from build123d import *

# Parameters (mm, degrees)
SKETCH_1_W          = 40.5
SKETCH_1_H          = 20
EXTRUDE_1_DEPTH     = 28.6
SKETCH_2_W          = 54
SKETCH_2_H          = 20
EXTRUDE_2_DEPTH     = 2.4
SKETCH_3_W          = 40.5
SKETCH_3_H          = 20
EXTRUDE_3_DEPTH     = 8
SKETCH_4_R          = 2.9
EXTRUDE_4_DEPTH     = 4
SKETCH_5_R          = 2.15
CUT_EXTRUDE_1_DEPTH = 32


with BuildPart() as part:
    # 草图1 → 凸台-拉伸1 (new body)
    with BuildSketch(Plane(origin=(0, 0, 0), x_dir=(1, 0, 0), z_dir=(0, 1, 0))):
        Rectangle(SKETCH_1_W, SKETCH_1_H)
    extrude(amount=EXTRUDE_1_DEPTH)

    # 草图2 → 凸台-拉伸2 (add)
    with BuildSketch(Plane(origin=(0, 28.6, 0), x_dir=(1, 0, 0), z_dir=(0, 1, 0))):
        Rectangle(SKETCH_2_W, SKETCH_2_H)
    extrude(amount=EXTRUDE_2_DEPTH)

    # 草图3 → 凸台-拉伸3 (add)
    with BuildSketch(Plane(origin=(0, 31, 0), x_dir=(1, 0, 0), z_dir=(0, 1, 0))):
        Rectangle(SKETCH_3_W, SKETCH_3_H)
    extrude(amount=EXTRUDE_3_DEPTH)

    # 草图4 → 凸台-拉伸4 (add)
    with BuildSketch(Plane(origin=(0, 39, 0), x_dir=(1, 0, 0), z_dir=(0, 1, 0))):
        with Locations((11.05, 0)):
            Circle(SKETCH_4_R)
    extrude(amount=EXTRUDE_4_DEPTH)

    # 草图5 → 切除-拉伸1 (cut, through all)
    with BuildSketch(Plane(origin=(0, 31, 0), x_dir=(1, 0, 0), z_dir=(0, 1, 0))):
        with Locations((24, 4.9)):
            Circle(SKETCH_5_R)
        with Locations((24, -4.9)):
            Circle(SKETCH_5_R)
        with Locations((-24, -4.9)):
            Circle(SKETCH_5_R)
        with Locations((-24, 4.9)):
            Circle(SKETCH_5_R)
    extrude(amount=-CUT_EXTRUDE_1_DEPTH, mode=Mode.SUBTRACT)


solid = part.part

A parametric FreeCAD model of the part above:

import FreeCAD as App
import Part
import Sketcher

V = App.Vector

doc = App.newDocument("Part")
params = doc.addObject("Spreadsheet::Sheet", "Params")
for row, (alias, value) in enumerate([
    ("sketch1_height", "20 mm"),
    ("sketch1_width", "40.5 mm"),
    ("pad1_length", "28.6 mm"),
    ("sketch2_width", "54 mm"),
    ("sketch2_height", "20 mm"),
    ("pad2_length", "2.4 mm"),
    ("sketch3_height", "20 mm"),
    ("sketch3_width", "40.5 mm"),
    ("pad3_length", "8 mm"),
    ("sketch4_diameter", "5.8 mm"),
    ("pad4_length", "4 mm"),
    ("sketch5_diameter", "4.3 mm"),
], start=1):
    params.set(f"A{row}", alias)
    params.set(f"B{row}", "=" + value)
    params.setAlias(f"B{row}", alias)

body = doc.addObject("PartDesign::Body", "Body")

# Sketch on XZ plane
sketch1 = body.newObject("Sketcher::SketchObject", "Sketch")
sketch1.AttachmentSupport = (doc.getObject("XZ_Plane"), [""])
sketch1.MapMode = "FlatFace"
sketch1.addGeometry(Part.LineSegment(V(-20, -10, 0), V(-20, 10, 0)), False)
sketch1.addGeometry(Part.LineSegment(V(-20, 10, 0), V(20, 10, 0)), False)
sketch1.addGeometry(Part.LineSegment(V(20, 10, 0), V(20, -10, 0)), False)
sketch1.addGeometry(Part.LineSegment(V(20, -10, 0), V(-20, -10, 0)), False)
sketch1.addConstraint(Sketcher.Constraint("Coincident", 0, 2, 1, 1))
sketch1.addConstraint(Sketcher.Constraint("Coincident", 1, 2, 2, 1))
sketch1.addConstraint(Sketcher.Constraint("Coincident", 2, 2, 3, 1))
sketch1.addConstraint(Sketcher.Constraint("Coincident", 3, 2, 0, 1))
sketch1.addConstraint(Sketcher.Constraint("Vertical", 0))
sketch1.addConstraint(Sketcher.Constraint("Horizontal", 1))
sketch1.addConstraint(Sketcher.Constraint("Vertical", 2))
sketch1.addConstraint(Sketcher.Constraint("Horizontal", 3))
sketch1.addConstraint(Sketcher.Constraint("Symmetric", 0, 2, 2, 2, -1, 1))
sketch1.addConstraint(Sketcher.Constraint("DistanceY", 0, 1, 0, 2, 20.0))
sketch1.addConstraint(Sketcher.Constraint("DistanceX", 1, 1, 1, 2, 40.5))
sketch1.setExpression("Constraints[9]", "Params.sketch1_height")
sketch1.setExpression("Constraints[10]", "Params.sketch1_width")
pad1 = body.newObject("PartDesign::Pad", "Pad")
pad1.Profile = sketch1
pad1.setExpression("Length", "Params.pad1_length")
pad1.Reversed = True

# Sketch on XZ plane
sketch2 = body.newObject("Sketcher::SketchObject", "Sketch001")
sketch2.AttachmentSupport = (doc.getObject("XZ_Plane"), [""])
sketch2.MapMode = "FlatFace"
sketch2.AttachmentOffset = App.Placement(V(0, 0, -28.6), App.Rotation())
sketch2.addGeometry(Part.LineSegment(V(-27, -10, 0), V(-27, 10, 0)), False)
sketch2.addGeometry(Part.LineSegment(V(-27, 10, 0), V(27, 10, 0)), False)
sketch2.addGeometry(Part.LineSegment(V(27, 10, 0), V(27, -10, 0)), False)
sketch2.addGeometry(Part.LineSegment(V(27, -10, 0), V(-27, -10, 0)), False)
sketch2.addConstraint(Sketcher.Constraint("Coincident", 0, 2, 1, 1))
sketch2.addConstraint(Sketcher.Constraint("Coincident", 1, 2, 2, 1))
sketch2.addConstraint(Sketcher.Constraint("Coincident", 2, 2, 3, 1))
sketch2.addConstraint(Sketcher.Constraint("Coincident", 3, 2, 0, 1))
sketch2.addConstraint(Sketcher.Constraint("Vertical", 0))
sketch2.addConstraint(Sketcher.Constraint("Horizontal", 1))
sketch2.addConstraint(Sketcher.Constraint("Vertical", 2))
sketch2.addConstraint(Sketcher.Constraint("Horizontal", 3))
sketch2.addConstraint(Sketcher.Constraint("Symmetric", 0, 2, 2, 2, -1, 1))
sketch2.addConstraint(Sketcher.Constraint("DistanceX", 1, 1, 1, 2, 54.0))
sketch2.addConstraint(Sketcher.Constraint("DistanceY", 0, 1, 0, 2, 20.0))
sketch2.setExpression("Constraints[9]", "Params.sketch2_width")
sketch2.setExpression("Constraints[10]", "Params.sketch2_height")
pad2 = body.newObject("PartDesign::Pad", "Pad001")
pad2.Profile = sketch2
pad2.setExpression("Length", "Params.pad2_length")
pad2.Reversed = True

# Sketch on XZ plane
sketch3 = body.newObject("Sketcher::SketchObject", "Sketch002")
sketch3.AttachmentSupport = (doc.getObject("XZ_Plane"), [""])
sketch3.MapMode = "FlatFace"
sketch3.AttachmentOffset = App.Placement(V(0, 0, -31), App.Rotation())
sketch3.addGeometry(Part.LineSegment(V(-20, -10, 0), V(-20, 10, 0)), False)
sketch3.addGeometry(Part.LineSegment(V(-20, 10, 0), V(20, 10, 0)), False)
sketch3.addGeometry(Part.LineSegment(V(20, 10, 0), V(20, -10, 0)), False)
sketch3.addGeometry(Part.LineSegment(V(20, -10, 0), V(-20, -10, 0)), False)
sketch3.addConstraint(Sketcher.Constraint("Coincident", 0, 2, 1, 1))
sketch3.addConstraint(Sketcher.Constraint("Coincident", 1, 2, 2, 1))
sketch3.addConstraint(Sketcher.Constraint("Coincident", 2, 2, 3, 1))
sketch3.addConstraint(Sketcher.Constraint("Coincident", 3, 2, 0, 1))
sketch3.addConstraint(Sketcher.Constraint("Vertical", 0))
sketch3.addConstraint(Sketcher.Constraint("Horizontal", 1))
sketch3.addConstraint(Sketcher.Constraint("Vertical", 2))
sketch3.addConstraint(Sketcher.Constraint("Horizontal", 3))
sketch3.addConstraint(Sketcher.Constraint("Symmetric", 0, 2, 2, 2, -1, 1))
sketch3.addConstraint(Sketcher.Constraint("DistanceY", 0, 1, 0, 2, 20.0))
sketch3.addConstraint(Sketcher.Constraint("DistanceX", 1, 1, 1, 2, 40.5))
sketch3.setExpression("Constraints[9]", "Params.sketch3_height")
sketch3.setExpression("Constraints[10]", "Params.sketch3_width")
pad3 = body.newObject("PartDesign::Pad", "Pad002")
pad3.Profile = sketch3
pad3.setExpression("Length", "Params.pad3_length")
pad3.Reversed = True

# Sketch on XZ plane
sketch4 = body.newObject("Sketcher::SketchObject", "Sketch003")
sketch4.AttachmentSupport = (doc.getObject("XZ_Plane"), [""])
sketch4.MapMode = "FlatFace"
sketch4.AttachmentOffset = App.Placement(V(0, 0, -39), App.Rotation())
sketch4.addGeometry(Part.Circle(V(11.1, 0, 0), V(0, 0, 1), 2.9), False)
sketch4.addConstraint(Sketcher.Constraint("PointOnObject", 0, 3, -1))
sketch4.addConstraint(Sketcher.Constraint("Diameter", 0, 5.8))
sketch4.addConstraint(Sketcher.Constraint("DistanceX", -1, 1, 0, 3, 11.05))
sketch4.setExpression("Constraints[1]", "Params.sketch4_diameter")
pad4 = body.newObject("PartDesign::Pad", "Pad003")
pad4.Profile = sketch4
pad4.setExpression("Length", "Params.pad4_length")
pad4.Reversed = True

# Sketch on XZ plane
sketch5 = body.newObject("Sketcher::SketchObject", "Sketch004")
sketch5.AttachmentSupport = (doc.getObject("XZ_Plane"), [""])
sketch5.MapMode = "FlatFace"
sketch5.AttachmentOffset = App.Placement(V(0, 0, -31), App.Rotation())
sketch5.addGeometry(Part.Circle(V(24, -4.9, 0), V(0, 0, 1), 2.1), False)
sketch5.addGeometry(Part.Circle(V(24, 4.9, 0), V(0, 0, 1), 2.1), False)
sketch5.addGeometry(Part.Circle(V(-24, 4.9, 0), V(0, 0, 1), 2.1), False)
sketch5.addGeometry(Part.Circle(V(-24, -4.9, 0), V(0, 0, 1), 2.1), False)
sketch5.addConstraint(Sketcher.Constraint("Equal", 0, 1))
sketch5.addConstraint(Sketcher.Constraint("Equal", 1, 2))
sketch5.addConstraint(Sketcher.Constraint("Equal", 2, 3))
sketch5.addConstraint(Sketcher.Constraint("Symmetric", 0, 3, 2, 3, -1, 1))
sketch5.addConstraint(Sketcher.Constraint("Symmetric", 1, 3, 3, 3, -1, 1))
sketch5.addConstraint(Sketcher.Constraint("Symmetric", 1, 3, 2, 3, -2))
sketch5.addConstraint(Sketcher.Constraint("Diameter", 0, 4.3))
sketch5.addConstraint(Sketcher.Constraint("DistanceX", -1, 1, 0, 3, 24.0))
sketch5.addConstraint(Sketcher.Constraint("DistanceY", 0, 3, -1, 1, 4.9))
sketch5.setExpression("Constraints[6]", "Params.sketch5_diameter")
pocket1 = body.newObject("PartDesign::Pocket", "Pocket")
pocket1.Profile = sketch5
pocket1.Type = "ThroughAll"
pocket1.Reversed = True

doc.recompute()
